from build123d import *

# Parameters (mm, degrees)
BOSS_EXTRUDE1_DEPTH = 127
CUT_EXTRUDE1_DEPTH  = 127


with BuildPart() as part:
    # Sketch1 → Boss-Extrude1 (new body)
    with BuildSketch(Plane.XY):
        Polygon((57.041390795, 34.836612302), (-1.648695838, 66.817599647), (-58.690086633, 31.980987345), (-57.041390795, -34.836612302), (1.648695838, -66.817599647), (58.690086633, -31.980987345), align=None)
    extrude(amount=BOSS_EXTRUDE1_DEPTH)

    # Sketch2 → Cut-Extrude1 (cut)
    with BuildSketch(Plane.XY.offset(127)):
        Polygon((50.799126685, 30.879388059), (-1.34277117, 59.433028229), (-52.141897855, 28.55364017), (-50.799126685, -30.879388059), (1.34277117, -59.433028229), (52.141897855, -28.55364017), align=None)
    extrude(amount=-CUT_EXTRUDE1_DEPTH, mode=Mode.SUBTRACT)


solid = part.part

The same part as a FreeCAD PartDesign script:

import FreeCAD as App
import Part
import Sketcher

V = App.Vector
Q = App.Units.Quantity


def add_polygon(sketch, points):
    """Adds a closed chain of lines whose ends are joined by coincident constraints."""
    first, n = sketch.GeometryCount, len(points)
    for a, b in zip(points, points[1:] + points[:1]):
        sketch.addGeometry(Part.LineSegment(App.Vector(*a, 0), App.Vector(*b, 0)), False)
    for i in range(n):
        sketch.addConstraint(Sketcher.Constraint("Coincident", first + i, 2, first + (i + 1) % n, 1))

doc = App.newDocument("Part")
body = doc.addObject("PartDesign::Body", "Body")

# Sketch on XY plane
sketch1 = body.newObject("Sketcher::SketchObject", "Sketch")
sketch1.AttachmentSupport = (doc.getObject("XY_Plane"), [""])
sketch1.MapMode = "FlatFace"
add_polygon(sketch1, [(57, 35), (-2, 67), (-59, 32), (-57, -35), (2, -67), (59, -32)])  # lines 0-5
sketch1.addConstraint([
    Sketcher.Constraint("Symmetric", 0, 2, 3, 2, -1, 1),
    Sketcher.Constraint("Symmetric", 1, 2, 4, 2, -1, 1),
    Sketcher.Constraint("Symmetric", 2, 2, 5, 2, -1, 1),
    Sketcher.Constraint("Equal", 0, 1),
    Sketcher.Constraint("Equal", 1, 2),
    Sketcher.Constraint("DistanceY", -1, 1, 0, 2, Q("66.8176 mm")),
    Sketcher.Constraint("DistanceY", 2, 2, 1, 2, Q("66.8176 mm")),
    Sketcher.Constraint("DistanceX", 2, 2, -1, 1, Q("57.041391 mm")),
    Sketcher.Constraint("DistanceX", 1, 2, 0, 2, Q("57.041391 mm")),
])
pad1 = body.newObject("PartDesign::Pad", "Pad")
pad1.Profile = sketch1
pad1.Length = Q("5 in")

# Sketch on XY plane
sketch2 = body.newObject("Sketcher::SketchObject", "Sketch001")
sketch2.AttachmentSupport = (doc.getObject("XY_Plane"), [""])
sketch2.MapMode = "FlatFace"
sketch2.AttachmentOffset = App.Placement(V(0, 0, 5 * 25.4), App.Rotation())
add_polygon(sketch2, [(51, 31), (-1, 59), (-52, 29), (-51, -31), (1, -59), (52, -29)])  # lines 0-5
sketch2.addConstraint([
    Sketcher.Constraint("Symmetric", 0, 2, 3, 2, -1, 1),
    Sketcher.Constraint("Symmetric", 1, 2, 4, 2, -1, 1),
    Sketcher.Constraint("Symmetric", 2, 2, 5, 2, -1, 1),
    Sketcher.Constraint("Equal", 0, 1),
    Sketcher.Constraint("Equal", 1, 2),
    Sketcher.Constraint("DistanceX", 0, 2, -1, 1, Q("1.342771 mm")),
    Sketcher.Constraint("DistanceY", -1, 1, 0, 2, Q("59.433028 mm")),
    Sketcher.Constraint("DistanceY", -1, 1, 1, 2, Q("28.55364 mm")),
    Sketcher.Constraint("DistanceY", 2, 2, -1, 1, Q("30.879388 mm")),
])
pocket1 = body.newObject("PartDesign::Pocket", "Pocket")
pocket1.Profile = sketch2
pocket1.Length = Q("5 in")

doc.recompute()
